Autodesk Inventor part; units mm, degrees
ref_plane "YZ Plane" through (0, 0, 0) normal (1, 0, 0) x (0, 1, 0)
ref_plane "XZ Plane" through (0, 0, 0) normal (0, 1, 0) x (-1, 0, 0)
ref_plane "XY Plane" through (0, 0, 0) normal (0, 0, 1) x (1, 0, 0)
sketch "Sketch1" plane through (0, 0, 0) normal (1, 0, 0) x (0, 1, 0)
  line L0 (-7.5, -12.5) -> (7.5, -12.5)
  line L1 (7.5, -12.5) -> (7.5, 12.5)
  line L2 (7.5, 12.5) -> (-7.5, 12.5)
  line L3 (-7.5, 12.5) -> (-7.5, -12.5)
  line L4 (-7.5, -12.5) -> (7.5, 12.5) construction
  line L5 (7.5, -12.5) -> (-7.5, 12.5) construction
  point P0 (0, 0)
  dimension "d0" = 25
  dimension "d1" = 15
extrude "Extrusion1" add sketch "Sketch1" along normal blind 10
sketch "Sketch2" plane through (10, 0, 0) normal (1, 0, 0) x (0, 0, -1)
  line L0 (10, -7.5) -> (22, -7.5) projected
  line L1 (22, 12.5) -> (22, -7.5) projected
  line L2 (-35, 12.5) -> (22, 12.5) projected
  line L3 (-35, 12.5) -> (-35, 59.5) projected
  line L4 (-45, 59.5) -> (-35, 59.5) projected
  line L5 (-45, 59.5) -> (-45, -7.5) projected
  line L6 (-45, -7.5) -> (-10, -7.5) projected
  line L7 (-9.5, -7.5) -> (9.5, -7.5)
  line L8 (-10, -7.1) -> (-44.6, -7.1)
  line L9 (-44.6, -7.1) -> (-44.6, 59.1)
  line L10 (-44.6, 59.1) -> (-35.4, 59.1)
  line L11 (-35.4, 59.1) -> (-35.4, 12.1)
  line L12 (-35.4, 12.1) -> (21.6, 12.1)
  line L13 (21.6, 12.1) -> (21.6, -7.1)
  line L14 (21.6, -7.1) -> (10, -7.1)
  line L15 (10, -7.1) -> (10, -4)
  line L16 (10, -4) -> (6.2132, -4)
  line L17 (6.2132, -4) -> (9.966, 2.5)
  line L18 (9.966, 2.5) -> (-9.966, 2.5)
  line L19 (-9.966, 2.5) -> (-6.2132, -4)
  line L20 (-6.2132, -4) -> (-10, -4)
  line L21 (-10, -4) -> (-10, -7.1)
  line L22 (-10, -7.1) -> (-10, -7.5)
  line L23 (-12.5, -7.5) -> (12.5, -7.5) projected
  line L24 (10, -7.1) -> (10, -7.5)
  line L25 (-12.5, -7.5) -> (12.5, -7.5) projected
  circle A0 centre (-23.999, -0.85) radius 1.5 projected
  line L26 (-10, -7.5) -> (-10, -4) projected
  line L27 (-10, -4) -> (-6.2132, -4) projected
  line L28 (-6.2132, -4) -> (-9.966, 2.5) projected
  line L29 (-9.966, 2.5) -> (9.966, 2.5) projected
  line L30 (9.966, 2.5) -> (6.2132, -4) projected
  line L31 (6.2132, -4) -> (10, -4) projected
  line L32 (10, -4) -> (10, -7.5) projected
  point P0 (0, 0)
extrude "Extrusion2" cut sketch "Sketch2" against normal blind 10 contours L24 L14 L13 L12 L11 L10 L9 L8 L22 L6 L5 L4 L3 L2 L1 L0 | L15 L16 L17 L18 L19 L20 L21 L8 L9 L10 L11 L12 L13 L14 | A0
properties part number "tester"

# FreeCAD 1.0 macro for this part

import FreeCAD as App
import Part
import Sketcher
Q = App.Units.Quantity


def add_polygon(sketch, points):
    """Adds a closed chain of lines whose ends are joined by coincident constraints."""
    first, n = sketch.GeometryCount, len(points)
    for a, b in zip(points, points[1:] + points[:1]):
        sketch.addGeometry(Part.LineSegment(App.Vector(*a, 0), App.Vector(*b, 0)), False)
    for i in range(n):
        sketch.addConstraint(Sketcher.Constraint("Coincident", first + i, 2, first + (i + 1) % n, 1))

doc = App.newDocument("Part")
body = doc.addObject("PartDesign::Body", "Body")

# Sketch on YZ plane
sketch1 = body.newObject("Sketcher::SketchObject", "Sketch")
sketch1.AttachmentSupport = (doc.getObject("YZ_Plane"), [""])
sketch1.MapMode = "FlatFace"
add_polygon(sketch1, [(-8, 12), (-8, -12), (8, -12), (8, 12)])  # lines 0-3
sketch1.addConstraint([
    Sketcher.Constraint("Vertical", 0),
    Sketcher.Constraint("Horizontal", 1),
    Sketcher.Constraint("Vertical", 2),
    Sketcher.Constraint("Horizontal", 3),
    Sketcher.Constraint("Symmetric", 0, 2, 2, 2, -1, 1),
    Sketcher.Constraint("DistanceX", 1, 1, 1, 2, 15.0),
    Sketcher.Constraint("DistanceY", 0, 2, 0, 1, 25.0),
])
pad1 = body.newObject("PartDesign::Pad", "Pad")
pad1.Profile = sketch1
pad1.Length = 10

# Sketch on YZ plane
sketch2 = body.newObject("Sketcher::SketchObject", "Sketch001")
sketch2.AttachmentSupport = (doc.getObject("YZ_Plane"), [""])
sketch2.MapMode = "FlatFace"
sketch2.AttachmentOffset = App.Placement(App.Vector(0, 0, 10), App.Rotation())
add_polygon(sketch2, [(-7.5, -10), (-7.5, -22), (12.5, -22), (12.5, 35), (59.5, 35), (59.5, 45), (-7.5, 45), (-7.5, 10), (-4, 10), (-4, 6.2), (2.5, 10), (2.5, -10), (-4, -6.2), (-4, -10)])  # lines 0-13
sketch2.addConstraint([
    Sketcher.Constraint("Vertical", 0),
    Sketcher.Constraint("Horizontal", 1),
    Sketcher.Constraint("Vertical", 2),
    Sketcher.Constraint("Horizontal", 3),
    Sketcher.Constraint("Vertical", 4),
    Sketcher.Constraint("Horizontal", 5),
    Sketcher.Constraint("Vertical", 6),
    Sketcher.Constraint("Horizontal", 7),
    Sketcher.Constraint("Vertical", 8),
    Sketcher.Constraint("Vertical", 10),
    Sketcher.Constraint("Vertical", 12),
    Sketcher.Constraint("Horizontal", 13),
    Sketcher.Constraint("Symmetric", 8, 2, 11, 2, -1),
    Sketcher.Constraint("Symmetric", 6, 2, 13, 2, -1),
    Sketcher.Constraint("Equal", 9, 11),
    Sketcher.Constraint("DistanceX", 1, 1, 1, 2, 20.0),
    Sketcher.Constraint("DistanceX", 3, 1, 3, 2, 47.0),
    Sketcher.Constraint("DistanceY", 0, 2, 0, 1, 12.0),
    Sketcher.Constraint("DistanceY", 2, 1, 2, 2, 57.0),
    Sketcher.Constraint("DistanceY", 4, 1, 4, 2, 10.0),
    Sketcher.Constraint("DistanceY", 6, 2, 6, 1, 35.0),
    Sketcher.Constraint("Angle", 9, Q("30.0002 deg")),
    Sketcher.Constraint("DistanceX", 7, 1, 7, 2, 3.5),
    Sketcher.Constraint("DistanceX", 7, 2, -1, 1, 4.0),
    Sketcher.Constraint("DistanceX", 6, 2, 9, 2, 10.0),
    Sketcher.Constraint("DistanceY", 10, 2, 10, 1, 19.932),
])
pocket1 = body.newObject("PartDesign::Pocket", "Pocket")
pocket1.Profile = sketch2
pocket1.Length = 10

doc.recompute()
